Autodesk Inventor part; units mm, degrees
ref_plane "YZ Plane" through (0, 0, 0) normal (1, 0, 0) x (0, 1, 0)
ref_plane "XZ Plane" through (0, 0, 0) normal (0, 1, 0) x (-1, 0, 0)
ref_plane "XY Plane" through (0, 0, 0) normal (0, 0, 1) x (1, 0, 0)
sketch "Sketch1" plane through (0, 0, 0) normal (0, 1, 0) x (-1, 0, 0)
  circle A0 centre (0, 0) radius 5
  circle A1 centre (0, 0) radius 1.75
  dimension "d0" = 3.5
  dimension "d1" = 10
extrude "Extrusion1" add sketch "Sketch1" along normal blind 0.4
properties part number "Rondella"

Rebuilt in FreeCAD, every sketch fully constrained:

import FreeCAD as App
import Part
import Sketcher
from FreeCAD import Vector

doc = App.newDocument("Part")
params = doc.addObject("Spreadsheet::Sheet", "Params")
for row, (alias, value) in enumerate([
    ("sketch1_diameter", "10 mm"),
    ("sketch1_diameter2", "3.5 mm"),
    ("pad1_length", "0.4 mm"),
], start=1):
    params.set(f"A{row}", alias)
    params.set(f"B{row}", "=" + value)
    params.setAlias(f"B{row}", alias)

body = doc.addObject("PartDesign::Body", "Body")

# Sketch on XZ plane
sketch1 = doc.addObject("Sketcher::SketchObject", "Sketch")
body.addObject(sketch1)
sketch1.AttachmentSupport = (doc.XZ_Plane, [""])
sketch1.MapMode = "FlatFace"
sketch1.addGeometry([
    Part.Circle(Vector(0, 0, 0), Vector(0, 0, 1), 5),
    Part.Circle(Vector(0, 0, 0), Vector(0, 0, 1), 1.8),
], False)
sketch1.addConstraint([
    Sketcher.Constraint("Coincident", 0, 3, -1, 1),
    Sketcher.Constraint("Coincident", 1, 3, -1, 1),
    Sketcher.Constraint("Diameter", 0, 10.0),
    Sketcher.Constraint("Diameter", 1, 3.5),
])
sketch1.setExpression("Constraints[2]", "Params.sketch1_diameter")
sketch1.setExpression("Constraints[3]", "Params.sketch1_diameter2")
pad1 = doc.addObject("PartDesign::Pad", "Pad")
body.addObject(pad1)
pad1.Profile = sketch1
pad1.setExpression("Length", "Params.pad1_length")
pad1.Reversed = True

doc.recompute()
